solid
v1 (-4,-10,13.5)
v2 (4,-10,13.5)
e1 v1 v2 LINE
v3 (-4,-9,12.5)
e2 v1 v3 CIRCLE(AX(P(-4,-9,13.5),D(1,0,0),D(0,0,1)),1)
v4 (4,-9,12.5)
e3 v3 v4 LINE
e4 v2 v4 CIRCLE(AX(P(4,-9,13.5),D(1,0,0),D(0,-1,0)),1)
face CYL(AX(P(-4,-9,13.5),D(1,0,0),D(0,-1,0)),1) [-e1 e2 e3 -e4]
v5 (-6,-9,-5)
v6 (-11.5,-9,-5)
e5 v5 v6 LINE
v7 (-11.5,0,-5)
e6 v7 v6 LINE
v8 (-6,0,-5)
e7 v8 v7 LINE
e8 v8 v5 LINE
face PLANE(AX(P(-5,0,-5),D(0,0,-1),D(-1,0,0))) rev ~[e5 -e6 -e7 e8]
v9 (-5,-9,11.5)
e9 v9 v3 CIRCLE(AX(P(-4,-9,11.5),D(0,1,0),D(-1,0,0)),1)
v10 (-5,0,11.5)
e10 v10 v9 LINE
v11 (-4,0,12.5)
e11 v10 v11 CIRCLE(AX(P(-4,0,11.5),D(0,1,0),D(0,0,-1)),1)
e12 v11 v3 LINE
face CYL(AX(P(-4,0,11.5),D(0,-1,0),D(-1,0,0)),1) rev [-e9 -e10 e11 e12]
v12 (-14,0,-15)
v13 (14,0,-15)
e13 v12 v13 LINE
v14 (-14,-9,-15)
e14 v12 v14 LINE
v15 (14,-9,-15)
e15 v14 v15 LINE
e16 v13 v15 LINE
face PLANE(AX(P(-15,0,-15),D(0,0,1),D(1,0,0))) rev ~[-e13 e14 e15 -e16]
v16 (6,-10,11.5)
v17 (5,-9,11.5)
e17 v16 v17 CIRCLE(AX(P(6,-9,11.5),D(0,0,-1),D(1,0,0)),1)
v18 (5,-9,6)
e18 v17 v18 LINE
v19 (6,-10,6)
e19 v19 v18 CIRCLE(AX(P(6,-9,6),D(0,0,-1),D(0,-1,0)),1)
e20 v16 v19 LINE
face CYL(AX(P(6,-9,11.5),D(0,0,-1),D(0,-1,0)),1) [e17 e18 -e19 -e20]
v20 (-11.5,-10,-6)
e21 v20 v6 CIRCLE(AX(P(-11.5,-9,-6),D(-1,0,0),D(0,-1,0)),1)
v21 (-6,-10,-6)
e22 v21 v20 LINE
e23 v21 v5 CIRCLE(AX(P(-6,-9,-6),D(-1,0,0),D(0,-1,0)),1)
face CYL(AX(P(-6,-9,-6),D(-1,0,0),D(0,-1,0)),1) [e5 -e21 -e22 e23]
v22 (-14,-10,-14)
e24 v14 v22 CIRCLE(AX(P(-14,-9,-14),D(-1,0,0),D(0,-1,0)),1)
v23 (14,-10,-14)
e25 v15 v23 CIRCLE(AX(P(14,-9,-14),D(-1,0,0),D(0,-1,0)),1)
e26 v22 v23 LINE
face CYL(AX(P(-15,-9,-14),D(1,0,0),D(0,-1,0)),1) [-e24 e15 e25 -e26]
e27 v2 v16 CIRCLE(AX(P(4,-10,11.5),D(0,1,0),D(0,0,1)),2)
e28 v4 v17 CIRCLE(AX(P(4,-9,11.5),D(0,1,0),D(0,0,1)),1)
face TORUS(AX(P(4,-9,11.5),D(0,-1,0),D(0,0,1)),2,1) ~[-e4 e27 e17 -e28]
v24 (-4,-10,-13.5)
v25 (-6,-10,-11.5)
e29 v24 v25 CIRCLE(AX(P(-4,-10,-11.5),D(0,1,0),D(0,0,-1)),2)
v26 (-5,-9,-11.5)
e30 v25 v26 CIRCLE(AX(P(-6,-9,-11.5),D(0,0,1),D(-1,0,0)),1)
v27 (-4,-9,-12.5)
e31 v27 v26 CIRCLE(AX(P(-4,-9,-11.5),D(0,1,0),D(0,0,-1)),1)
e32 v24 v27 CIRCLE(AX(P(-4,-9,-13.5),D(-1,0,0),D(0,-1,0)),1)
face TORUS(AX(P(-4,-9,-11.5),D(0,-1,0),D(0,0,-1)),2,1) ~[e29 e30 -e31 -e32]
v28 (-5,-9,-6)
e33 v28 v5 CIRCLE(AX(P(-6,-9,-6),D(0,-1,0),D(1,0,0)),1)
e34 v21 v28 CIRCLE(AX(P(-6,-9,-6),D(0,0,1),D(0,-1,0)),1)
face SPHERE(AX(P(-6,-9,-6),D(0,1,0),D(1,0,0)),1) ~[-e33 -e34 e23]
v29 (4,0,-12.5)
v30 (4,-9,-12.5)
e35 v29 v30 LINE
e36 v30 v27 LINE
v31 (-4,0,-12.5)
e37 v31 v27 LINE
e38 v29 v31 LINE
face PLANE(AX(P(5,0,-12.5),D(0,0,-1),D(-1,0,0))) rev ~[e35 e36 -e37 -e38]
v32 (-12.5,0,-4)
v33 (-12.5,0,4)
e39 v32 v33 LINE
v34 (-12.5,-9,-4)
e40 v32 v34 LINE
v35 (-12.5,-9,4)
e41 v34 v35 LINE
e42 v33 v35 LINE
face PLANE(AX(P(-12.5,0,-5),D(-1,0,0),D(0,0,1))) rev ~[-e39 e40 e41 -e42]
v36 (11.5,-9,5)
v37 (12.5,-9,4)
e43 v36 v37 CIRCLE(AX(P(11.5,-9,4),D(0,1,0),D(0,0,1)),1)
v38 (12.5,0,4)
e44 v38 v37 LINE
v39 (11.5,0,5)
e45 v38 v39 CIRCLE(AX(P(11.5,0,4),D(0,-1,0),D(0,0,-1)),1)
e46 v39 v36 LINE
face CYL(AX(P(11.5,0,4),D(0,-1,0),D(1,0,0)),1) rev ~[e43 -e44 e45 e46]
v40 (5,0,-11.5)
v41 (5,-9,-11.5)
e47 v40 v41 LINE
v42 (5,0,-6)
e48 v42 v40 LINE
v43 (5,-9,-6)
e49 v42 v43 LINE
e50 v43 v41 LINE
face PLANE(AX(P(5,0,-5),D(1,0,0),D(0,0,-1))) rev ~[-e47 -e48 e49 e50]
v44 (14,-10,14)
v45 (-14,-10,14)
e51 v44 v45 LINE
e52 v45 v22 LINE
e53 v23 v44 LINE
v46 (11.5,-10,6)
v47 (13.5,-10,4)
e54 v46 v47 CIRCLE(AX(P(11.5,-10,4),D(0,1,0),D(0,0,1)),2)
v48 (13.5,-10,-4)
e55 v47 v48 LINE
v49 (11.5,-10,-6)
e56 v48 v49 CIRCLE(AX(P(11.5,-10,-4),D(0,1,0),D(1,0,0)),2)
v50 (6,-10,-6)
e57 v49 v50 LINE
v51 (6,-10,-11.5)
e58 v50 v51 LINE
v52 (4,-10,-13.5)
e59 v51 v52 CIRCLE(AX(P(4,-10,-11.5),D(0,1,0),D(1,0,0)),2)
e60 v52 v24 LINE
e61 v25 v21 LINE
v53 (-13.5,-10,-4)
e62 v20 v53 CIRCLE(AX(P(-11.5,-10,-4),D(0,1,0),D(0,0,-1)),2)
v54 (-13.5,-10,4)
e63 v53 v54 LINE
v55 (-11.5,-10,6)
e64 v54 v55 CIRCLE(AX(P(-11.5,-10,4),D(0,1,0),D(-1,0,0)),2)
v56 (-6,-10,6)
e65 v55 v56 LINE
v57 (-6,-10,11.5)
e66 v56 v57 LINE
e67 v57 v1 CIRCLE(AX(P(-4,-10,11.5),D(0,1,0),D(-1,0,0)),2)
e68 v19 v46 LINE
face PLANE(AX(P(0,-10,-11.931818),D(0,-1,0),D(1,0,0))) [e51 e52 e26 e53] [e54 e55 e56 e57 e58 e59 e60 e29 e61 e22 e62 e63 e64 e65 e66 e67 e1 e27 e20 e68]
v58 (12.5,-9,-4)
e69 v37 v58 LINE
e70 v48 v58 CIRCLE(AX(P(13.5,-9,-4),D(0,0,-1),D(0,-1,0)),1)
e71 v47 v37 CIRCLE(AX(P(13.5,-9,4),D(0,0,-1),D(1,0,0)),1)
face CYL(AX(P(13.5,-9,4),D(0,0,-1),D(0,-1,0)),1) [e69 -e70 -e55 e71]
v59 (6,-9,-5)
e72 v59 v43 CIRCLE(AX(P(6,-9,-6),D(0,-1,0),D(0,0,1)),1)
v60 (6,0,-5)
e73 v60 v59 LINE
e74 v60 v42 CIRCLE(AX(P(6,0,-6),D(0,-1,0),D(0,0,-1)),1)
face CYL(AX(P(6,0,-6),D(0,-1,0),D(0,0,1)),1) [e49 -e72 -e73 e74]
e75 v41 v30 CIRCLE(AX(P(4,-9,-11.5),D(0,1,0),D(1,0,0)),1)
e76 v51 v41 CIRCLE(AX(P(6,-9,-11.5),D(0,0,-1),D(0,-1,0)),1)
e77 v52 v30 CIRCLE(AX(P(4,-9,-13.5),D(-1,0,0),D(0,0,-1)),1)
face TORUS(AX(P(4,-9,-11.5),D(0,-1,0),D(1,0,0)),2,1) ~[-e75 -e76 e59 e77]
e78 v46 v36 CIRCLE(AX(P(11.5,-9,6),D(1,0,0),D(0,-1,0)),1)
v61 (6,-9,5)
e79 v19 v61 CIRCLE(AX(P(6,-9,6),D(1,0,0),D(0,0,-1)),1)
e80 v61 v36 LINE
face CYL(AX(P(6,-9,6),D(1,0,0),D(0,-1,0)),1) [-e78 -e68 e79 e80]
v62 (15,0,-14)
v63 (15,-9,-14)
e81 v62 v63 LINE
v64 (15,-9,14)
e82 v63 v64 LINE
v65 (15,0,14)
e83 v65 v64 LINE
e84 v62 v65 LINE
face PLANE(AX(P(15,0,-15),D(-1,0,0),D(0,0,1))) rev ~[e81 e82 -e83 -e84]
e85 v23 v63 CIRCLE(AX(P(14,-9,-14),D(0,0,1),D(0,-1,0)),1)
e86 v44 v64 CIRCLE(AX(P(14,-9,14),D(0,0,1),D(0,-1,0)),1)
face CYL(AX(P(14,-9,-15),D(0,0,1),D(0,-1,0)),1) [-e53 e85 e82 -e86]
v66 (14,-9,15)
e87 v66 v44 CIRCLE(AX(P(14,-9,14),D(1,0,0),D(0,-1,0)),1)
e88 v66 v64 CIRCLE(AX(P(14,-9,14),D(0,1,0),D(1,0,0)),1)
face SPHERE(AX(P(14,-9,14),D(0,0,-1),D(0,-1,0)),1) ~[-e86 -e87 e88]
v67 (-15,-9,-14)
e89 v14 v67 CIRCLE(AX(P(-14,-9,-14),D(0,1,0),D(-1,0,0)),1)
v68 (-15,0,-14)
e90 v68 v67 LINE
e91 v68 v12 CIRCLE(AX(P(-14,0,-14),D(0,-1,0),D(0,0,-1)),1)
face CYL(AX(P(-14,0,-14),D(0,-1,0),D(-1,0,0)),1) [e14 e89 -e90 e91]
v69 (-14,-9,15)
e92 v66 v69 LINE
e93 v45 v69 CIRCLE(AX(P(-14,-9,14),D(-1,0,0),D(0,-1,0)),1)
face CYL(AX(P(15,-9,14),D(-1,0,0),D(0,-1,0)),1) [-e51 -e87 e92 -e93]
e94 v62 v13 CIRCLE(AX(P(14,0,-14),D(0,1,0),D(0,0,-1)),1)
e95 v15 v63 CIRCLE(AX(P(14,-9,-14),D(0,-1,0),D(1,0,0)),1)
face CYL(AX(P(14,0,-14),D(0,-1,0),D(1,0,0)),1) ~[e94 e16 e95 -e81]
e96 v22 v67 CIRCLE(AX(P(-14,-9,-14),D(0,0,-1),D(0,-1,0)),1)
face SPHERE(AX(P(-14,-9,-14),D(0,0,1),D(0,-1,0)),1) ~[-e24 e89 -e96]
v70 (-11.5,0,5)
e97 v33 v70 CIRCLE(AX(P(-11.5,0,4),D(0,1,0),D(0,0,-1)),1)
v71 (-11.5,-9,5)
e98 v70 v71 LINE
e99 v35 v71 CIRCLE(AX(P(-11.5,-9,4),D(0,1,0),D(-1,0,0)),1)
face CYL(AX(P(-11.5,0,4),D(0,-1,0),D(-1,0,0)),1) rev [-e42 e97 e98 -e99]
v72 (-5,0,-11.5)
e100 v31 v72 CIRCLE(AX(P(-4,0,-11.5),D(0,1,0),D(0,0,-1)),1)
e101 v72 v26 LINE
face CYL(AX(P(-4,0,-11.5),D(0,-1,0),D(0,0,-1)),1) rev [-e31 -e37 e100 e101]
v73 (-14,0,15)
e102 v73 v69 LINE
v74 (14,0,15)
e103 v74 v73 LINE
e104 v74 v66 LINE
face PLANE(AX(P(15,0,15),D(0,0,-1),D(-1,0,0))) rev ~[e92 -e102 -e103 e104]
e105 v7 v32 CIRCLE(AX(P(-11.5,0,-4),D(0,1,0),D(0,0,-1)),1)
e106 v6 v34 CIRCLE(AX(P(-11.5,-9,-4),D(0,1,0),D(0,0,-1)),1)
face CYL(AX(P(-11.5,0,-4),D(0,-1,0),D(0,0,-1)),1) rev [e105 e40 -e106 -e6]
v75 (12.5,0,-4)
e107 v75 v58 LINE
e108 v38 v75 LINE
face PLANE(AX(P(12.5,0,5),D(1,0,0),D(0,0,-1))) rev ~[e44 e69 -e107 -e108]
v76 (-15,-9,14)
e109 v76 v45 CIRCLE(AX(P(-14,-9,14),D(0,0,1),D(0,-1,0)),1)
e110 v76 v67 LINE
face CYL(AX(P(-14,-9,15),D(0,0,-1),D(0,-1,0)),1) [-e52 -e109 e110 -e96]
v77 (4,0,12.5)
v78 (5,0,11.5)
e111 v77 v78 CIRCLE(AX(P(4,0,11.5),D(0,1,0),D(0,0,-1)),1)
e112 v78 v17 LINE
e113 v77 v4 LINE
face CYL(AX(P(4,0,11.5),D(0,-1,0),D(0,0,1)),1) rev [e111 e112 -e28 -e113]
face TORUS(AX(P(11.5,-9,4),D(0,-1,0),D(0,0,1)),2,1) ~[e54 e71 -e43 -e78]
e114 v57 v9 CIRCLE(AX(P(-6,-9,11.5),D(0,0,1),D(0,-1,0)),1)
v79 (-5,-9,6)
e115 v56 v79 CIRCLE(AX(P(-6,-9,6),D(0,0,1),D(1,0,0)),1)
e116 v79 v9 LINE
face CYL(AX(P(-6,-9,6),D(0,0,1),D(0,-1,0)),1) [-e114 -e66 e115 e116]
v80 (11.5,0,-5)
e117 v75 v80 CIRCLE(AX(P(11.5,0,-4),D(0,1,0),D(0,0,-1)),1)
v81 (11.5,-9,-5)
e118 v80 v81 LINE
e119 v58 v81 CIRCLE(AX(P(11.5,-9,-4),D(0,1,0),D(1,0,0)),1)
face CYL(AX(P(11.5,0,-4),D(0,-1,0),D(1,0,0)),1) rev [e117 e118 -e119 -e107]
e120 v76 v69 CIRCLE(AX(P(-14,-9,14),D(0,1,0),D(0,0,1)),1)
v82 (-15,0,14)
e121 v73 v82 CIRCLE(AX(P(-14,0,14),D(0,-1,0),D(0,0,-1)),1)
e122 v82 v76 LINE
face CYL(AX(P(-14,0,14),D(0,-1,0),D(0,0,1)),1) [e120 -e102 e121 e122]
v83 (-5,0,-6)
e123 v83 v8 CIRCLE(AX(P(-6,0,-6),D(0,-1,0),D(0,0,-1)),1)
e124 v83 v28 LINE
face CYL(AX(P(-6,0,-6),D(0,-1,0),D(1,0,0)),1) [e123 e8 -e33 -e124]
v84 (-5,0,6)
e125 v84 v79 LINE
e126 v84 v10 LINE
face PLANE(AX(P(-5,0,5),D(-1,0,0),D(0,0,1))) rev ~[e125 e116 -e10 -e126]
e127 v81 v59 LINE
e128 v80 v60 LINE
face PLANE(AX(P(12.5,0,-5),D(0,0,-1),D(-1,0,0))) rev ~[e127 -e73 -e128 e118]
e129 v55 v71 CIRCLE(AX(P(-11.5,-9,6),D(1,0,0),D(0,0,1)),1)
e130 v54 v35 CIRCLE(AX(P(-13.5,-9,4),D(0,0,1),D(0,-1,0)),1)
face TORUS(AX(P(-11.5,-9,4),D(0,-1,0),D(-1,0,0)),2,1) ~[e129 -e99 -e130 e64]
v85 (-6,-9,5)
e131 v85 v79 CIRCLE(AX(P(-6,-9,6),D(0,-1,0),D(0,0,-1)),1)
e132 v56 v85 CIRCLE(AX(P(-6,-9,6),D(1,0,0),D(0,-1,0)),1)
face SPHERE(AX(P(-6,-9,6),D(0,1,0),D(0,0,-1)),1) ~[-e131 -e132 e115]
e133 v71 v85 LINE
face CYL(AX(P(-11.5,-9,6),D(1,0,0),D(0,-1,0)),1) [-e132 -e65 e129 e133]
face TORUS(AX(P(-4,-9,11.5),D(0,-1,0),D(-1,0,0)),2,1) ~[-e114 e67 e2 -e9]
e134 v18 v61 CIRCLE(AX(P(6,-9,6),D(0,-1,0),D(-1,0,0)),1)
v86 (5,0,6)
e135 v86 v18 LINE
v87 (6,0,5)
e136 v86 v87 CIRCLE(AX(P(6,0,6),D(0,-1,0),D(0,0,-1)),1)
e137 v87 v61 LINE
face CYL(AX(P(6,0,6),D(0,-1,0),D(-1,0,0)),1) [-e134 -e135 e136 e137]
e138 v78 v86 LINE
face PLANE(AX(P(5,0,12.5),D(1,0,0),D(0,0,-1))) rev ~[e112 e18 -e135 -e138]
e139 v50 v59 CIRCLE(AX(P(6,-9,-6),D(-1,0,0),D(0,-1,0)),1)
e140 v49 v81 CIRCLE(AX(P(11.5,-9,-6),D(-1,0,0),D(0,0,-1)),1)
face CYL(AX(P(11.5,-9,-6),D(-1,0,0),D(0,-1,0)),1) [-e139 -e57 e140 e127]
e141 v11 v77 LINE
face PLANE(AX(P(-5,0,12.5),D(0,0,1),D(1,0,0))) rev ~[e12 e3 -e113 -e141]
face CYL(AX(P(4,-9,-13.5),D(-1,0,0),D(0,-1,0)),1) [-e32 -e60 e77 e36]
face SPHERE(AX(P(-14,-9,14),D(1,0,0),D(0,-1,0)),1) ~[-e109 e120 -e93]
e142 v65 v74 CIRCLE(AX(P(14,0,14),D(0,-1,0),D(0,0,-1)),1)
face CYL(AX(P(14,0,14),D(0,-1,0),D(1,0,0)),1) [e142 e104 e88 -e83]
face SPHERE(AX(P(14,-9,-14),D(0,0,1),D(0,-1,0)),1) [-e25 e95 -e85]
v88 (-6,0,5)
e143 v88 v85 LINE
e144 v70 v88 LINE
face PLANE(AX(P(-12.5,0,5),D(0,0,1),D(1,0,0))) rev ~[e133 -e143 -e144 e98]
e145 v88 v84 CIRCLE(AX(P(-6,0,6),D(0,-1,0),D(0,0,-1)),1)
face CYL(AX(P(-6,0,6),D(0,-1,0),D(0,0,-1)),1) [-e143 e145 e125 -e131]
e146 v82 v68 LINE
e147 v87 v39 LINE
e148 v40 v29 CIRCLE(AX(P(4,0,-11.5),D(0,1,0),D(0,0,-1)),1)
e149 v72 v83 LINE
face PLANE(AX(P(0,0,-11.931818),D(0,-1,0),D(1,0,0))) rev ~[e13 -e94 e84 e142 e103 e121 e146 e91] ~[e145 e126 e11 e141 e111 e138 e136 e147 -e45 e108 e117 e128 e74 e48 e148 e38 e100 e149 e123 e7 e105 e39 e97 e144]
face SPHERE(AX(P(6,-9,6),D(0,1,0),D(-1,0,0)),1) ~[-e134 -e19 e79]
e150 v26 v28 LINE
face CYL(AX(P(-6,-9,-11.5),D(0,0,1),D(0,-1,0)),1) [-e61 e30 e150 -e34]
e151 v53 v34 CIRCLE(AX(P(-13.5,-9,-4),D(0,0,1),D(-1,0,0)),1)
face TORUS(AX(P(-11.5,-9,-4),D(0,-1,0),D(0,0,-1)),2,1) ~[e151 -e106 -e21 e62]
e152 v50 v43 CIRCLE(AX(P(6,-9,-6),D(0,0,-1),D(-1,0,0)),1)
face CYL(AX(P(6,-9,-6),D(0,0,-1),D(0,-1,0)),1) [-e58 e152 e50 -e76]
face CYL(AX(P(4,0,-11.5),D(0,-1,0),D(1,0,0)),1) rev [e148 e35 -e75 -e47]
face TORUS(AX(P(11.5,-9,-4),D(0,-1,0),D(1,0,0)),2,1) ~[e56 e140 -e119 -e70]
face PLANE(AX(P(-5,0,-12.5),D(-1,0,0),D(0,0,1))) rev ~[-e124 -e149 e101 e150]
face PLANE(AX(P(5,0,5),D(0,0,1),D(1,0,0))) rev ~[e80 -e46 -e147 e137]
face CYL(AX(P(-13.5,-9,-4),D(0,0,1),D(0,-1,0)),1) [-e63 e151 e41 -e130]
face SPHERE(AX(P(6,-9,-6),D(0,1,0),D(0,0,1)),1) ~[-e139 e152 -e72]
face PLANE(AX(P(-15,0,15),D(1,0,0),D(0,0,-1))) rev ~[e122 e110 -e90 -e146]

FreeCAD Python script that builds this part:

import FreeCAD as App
import Part
import Sketcher

V = App.Vector


def edges_at(feature, points):
    """Names of the edges that pass closest to the given points."""
    edges = feature.Shape.Edges
    near = lambda p: min(range(len(edges)), key=lambda i: edges[i].distToShape(Part.Vertex(*p))[0])
    return sorted({f"Edge{near(p) + 1}" for p in points})

doc = App.newDocument("Part")
body = doc.addObject("PartDesign::Body", "Body")

# Sketch on XZ plane
sketch1 = doc.addObject("Sketcher::SketchObject", "Sketch")
body.addObject(sketch1)
sketch1.AttachmentSupport = (doc.XZ_Plane, [""])
sketch1.MapMode = "FlatFace"
sketch1.addGeometry(Part.LineSegment(V(15, -15, 0), V(15, 15, 0)), False)
sketch1.addGeometry(Part.LineSegment(V(15, 15, 0), V(-15, 15, 0)), False)
sketch1.addGeometry(Part.LineSegment(V(-15, 15, 0), V(-15, -15, 0)), False)
sketch1.addGeometry(Part.LineSegment(V(-15, -15, 0), V(15, -15, 0)), False)
sketch1.addGeometry(Part.LineSegment(V(12, 5, 0), V(12, -5, 0)), False)
sketch1.addGeometry(Part.LineSegment(V(12, -5, 0), V(5, -5, 0)), False)
sketch1.addGeometry(Part.LineSegment(V(5, -5, 0), V(5, -12, 0)), False)
sketch1.addGeometry(Part.LineSegment(V(5, -12, 0), V(-5, -12, 0)), False)
sketch1.addGeometry(Part.LineSegment(V(-5, -12, 0), V(-5, -5, 0)), False)
sketch1.addGeometry(Part.LineSegment(V(-5, -5, 0), V(-12, -5, 0)), False)
sketch1.addGeometry(Part.LineSegment(V(-12, -5, 0), V(-12, 5, 0)), False)
sketch1.addGeometry(Part.LineSegment(V(-12, 5, 0), V(-5, 5, 0)), False)
sketch1.addGeometry(Part.LineSegment(V(-5, 5, 0), V(-5, 12, 0)), False)
sketch1.addGeometry(Part.LineSegment(V(-5, 12, 0), V(5, 12, 0)), False)
sketch1.addGeometry(Part.LineSegment(V(5, 12, 0), V(5, 5, 0)), False)
sketch1.addGeometry(Part.LineSegment(V(5, 5, 0), V(12, 5, 0)), False)
sketch1.addConstraint(Sketcher.Constraint("Coincident", 0, 2, 1, 1))
sketch1.addConstraint(Sketcher.Constraint("Coincident", 1, 2, 2, 1))
sketch1.addConstraint(Sketcher.Constraint("Coincident", 2, 2, 3, 1))
sketch1.addConstraint(Sketcher.Constraint("Coincident", 3, 2, 0, 1))
sketch1.addConstraint(Sketcher.Constraint("Coincident", 4, 2, 5, 1))
sketch1.addConstraint(Sketcher.Constraint("Coincident", 5, 2, 6, 1))
sketch1.addConstraint(Sketcher.Constraint("Coincident", 6, 2, 7, 1))
sketch1.addConstraint(Sketcher.Constraint("Coincident", 7, 2, 8, 1))
sketch1.addConstraint(Sketcher.Constraint("Coincident", 8, 2, 9, 1))
sketch1.addConstraint(Sketcher.Constraint("Coincident", 9, 2, 10, 1))
sketch1.addConstraint(Sketcher.Constraint("Coincident", 10, 2, 11, 1))
sketch1.addConstraint(Sketcher.Constraint("Coincident", 11, 2, 12, 1))
sketch1.addConstraint(Sketcher.Constraint("Coincident", 12, 2, 13, 1))
sketch1.addConstraint(Sketcher.Constraint("Coincident", 13, 2, 14, 1))
sketch1.addConstraint(Sketcher.Constraint("Coincident", 14, 2, 15, 1))
sketch1.addConstraint(Sketcher.Constraint("Coincident", 15, 2, 4, 1))
sketch1.addConstraint(Sketcher.Constraint("Vertical", 0))
sketch1.addConstraint(Sketcher.Constraint("Horizontal", 1))
sketch1.addConstraint(Sketcher.Constraint("Vertical", 2))
sketch1.addConstraint(Sketcher.Constraint("Horizontal", 3))
sketch1.addConstraint(Sketcher.Constraint("Vertical", 4))
sketch1.addConstraint(Sketcher.Constraint("Horizontal", 5))
sketch1.addConstraint(Sketcher.Constraint("Vertical", 6))
sketch1.addConstraint(Sketcher.Constraint("Horizontal", 7))
sketch1.addConstraint(Sketcher.Constraint("Vertical", 8))
sketch1.addConstraint(Sketcher.Constraint("Horizontal", 9))
sketch1.addConstraint(Sketcher.Constraint("Vertical", 10))
sketch1.addConstraint(Sketcher.Constraint("Horizontal", 11))
sketch1.addConstraint(Sketcher.Constraint("Vertical", 12))
sketch1.addConstraint(Sketcher.Constraint("Horizontal", 13))
sketch1.addConstraint(Sketcher.Constraint("Vertical", 14))
sketch1.addConstraint(Sketcher.Constraint("Horizontal", 15))
sketch1.addConstraint(Sketcher.Constraint("Symmetric", 0, 2, 2, 2, -1, 1))
sketch1.addConstraint(Sketcher.Constraint("Symmetric", 4, 2, 10, 2, -1, 1))
sketch1.addConstraint(Sketcher.Constraint("Symmetric", 6, 2, 12, 2, -1, 1))
sketch1.addConstraint(Sketcher.Constraint("Symmetric", 8, 2, 14, 2, -1, 1))
sketch1.addConstraint(Sketcher.Constraint("Symmetric", 5, 2, 8, 2, -2))
sketch1.addConstraint(Sketcher.Constraint("Equal", 3, 0))
sketch1.addConstraint(Sketcher.Constraint("Equal", 13, 4))
sketch1.addConstraint(Sketcher.Constraint("Equal", 15, 6))
sketch1.addConstraint(Sketcher.Constraint("DistanceX", 1, 2, 1, 1, 30.0))
sketch1.addConstraint(Sketcher.Constraint("DistanceX", 7, 2, 7, 1, 10.0))
sketch1.addConstraint(Sketcher.Constraint("DistanceX", 5, 2, 5, 1, 7.5))
pad1 = doc.addObject("PartDesign::Pad", "Pad")
body.addObject(pad1)
pad1.Profile = sketch1
pad1.Length = 10
doc.recompute()

fillet = doc.addObject("PartDesign::Fillet", "Fillet")
body.addObject(fillet)
fillet.Base = (pad1, edges_at(pad1, [
    (-5, -5, 5),
    (-5, -5, 12.5),
    (-12.5, -5, 5),
    (5, -5, 12.5),
    (5, -5, 5),
    (12.5, -5, 5),
    (12.5, -5, -5),
    (5, -5, -5),
    (5, -5, -12.5),
    (-5, -5, -12.5),
    (-5, -5, -5),
    (-12.5, -5, -5),
]))
fillet.Radius = 1
doc.recompute()

fillet2 = doc.addObject("PartDesign::Fillet", "Fillet001")
body.addObject(fillet2)
fillet2.Base = (fillet, edges_at(fillet, [
    (15, -10, 0),
    (0, -10, 15),
    (-15, -10, 0),
    (0, -10, -15),
    (-8.75, -10, -5),
    (-15, -5, -15),
    (15, -5, -15),
    (15, -5, 15),
    (-15, -5, 15),
]))
fillet2.Radius = 1

doc.recompute()
